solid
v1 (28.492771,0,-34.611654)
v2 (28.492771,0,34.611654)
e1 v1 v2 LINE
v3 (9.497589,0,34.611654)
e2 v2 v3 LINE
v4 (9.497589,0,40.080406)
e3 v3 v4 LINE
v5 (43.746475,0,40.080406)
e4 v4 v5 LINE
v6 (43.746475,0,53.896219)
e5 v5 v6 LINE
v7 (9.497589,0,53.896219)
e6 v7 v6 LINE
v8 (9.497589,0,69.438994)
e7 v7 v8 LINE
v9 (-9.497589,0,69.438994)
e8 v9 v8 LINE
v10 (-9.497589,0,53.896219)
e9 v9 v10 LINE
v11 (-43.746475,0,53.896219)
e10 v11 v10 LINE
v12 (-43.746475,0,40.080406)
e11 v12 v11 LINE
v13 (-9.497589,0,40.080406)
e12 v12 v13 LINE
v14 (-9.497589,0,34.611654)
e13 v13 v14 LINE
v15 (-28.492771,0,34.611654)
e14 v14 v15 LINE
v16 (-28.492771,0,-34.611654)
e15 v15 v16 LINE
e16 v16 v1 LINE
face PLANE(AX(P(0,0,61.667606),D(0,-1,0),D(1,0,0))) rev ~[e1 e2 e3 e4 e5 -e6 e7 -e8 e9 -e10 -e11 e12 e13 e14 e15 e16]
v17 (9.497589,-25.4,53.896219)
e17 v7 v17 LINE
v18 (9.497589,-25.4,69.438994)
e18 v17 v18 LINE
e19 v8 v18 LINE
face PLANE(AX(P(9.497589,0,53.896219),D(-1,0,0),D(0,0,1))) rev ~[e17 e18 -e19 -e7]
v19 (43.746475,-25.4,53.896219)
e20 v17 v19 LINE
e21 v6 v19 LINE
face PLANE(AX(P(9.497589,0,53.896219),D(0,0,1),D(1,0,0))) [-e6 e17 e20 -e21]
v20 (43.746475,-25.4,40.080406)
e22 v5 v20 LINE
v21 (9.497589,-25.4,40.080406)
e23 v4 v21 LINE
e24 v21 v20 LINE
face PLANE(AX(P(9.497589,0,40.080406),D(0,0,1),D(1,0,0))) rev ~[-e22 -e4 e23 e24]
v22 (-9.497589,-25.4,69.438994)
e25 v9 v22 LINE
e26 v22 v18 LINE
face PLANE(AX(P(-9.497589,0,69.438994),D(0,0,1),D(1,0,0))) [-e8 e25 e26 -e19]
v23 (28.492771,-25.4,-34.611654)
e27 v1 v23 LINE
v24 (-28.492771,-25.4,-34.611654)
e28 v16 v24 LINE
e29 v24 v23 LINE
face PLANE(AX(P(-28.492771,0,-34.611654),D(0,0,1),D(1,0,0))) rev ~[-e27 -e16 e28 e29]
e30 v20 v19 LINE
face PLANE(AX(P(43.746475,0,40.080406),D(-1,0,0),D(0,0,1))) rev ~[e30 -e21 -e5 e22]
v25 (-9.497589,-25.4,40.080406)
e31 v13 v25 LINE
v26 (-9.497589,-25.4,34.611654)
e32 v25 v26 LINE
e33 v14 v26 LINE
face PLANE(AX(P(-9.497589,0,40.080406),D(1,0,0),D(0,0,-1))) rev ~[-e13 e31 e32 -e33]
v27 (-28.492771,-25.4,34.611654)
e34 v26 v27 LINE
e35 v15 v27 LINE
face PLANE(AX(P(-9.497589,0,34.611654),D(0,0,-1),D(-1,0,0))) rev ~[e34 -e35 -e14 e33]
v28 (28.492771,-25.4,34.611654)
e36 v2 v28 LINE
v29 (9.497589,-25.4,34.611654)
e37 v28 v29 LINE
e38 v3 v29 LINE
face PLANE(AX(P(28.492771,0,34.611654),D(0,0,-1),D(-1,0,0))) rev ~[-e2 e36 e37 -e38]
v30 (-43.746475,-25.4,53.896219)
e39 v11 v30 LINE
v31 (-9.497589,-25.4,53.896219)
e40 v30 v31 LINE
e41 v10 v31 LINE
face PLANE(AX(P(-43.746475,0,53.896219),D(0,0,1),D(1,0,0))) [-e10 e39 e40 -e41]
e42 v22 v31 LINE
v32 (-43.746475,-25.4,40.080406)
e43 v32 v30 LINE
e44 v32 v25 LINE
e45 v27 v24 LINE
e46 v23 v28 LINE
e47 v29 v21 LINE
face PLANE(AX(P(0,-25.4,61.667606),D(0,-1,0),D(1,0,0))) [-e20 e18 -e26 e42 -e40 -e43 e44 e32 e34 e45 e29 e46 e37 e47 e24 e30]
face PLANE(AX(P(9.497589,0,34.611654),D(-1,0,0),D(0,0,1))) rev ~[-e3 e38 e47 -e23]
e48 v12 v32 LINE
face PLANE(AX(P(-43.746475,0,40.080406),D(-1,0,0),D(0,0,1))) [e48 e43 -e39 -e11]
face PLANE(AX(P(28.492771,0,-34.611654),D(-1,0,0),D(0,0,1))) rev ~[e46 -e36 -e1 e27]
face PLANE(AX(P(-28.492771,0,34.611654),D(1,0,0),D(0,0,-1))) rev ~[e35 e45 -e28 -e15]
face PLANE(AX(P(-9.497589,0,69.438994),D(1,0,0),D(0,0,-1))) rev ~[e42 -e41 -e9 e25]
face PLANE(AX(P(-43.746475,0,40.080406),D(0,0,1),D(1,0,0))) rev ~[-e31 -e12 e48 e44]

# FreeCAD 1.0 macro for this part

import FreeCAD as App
import Part
import Sketcher
from FreeCAD import Vector
Q = App.Units.Quantity

doc = App.newDocument("Part")
body = doc.addObject("PartDesign::Body", "Body")

# Sketch on XZ plane
sketch1 = body.newObject("Sketcher::SketchObject", "Sketch")
sketch1.AttachmentSupport = (doc.getObject("XZ_Plane"), [""])
sketch1.MapMode = "FlatFace"
sketch1.addGeometry([
    Part.LineSegment(Vector(-9, 69, 0), Vector(-9, 54, 0)),  # 0
    Part.LineSegment(Vector(-9, 54, 0), Vector(-44, 54, 0)),  # 1
    Part.LineSegment(Vector(-44, 54, 0), Vector(-44, 40, 0)),  # 2
    Part.LineSegment(Vector(-44, 40, 0), Vector(-9, 40, 0)),  # 3
    Part.LineSegment(Vector(-9, 40, 0), Vector(-9, 35, 0)),  # 4
    Part.LineSegment(Vector(-9, 35, 0), Vector(-28, 35, 0)),  # 5
    Part.LineSegment(Vector(-28, 35, 0), Vector(-28, -35, 0)),  # 6
    Part.LineSegment(Vector(-28, -35, 0), Vector(28, -35, 0)),  # 7
    Part.LineSegment(Vector(28, -35, 0), Vector(28, 35, 0)),  # 8
    Part.LineSegment(Vector(28, 35, 0), Vector(9, 35, 0)),  # 9
    Part.LineSegment(Vector(9, 35, 0), Vector(9, 40, 0)),  # 10
    Part.LineSegment(Vector(9, 40, 0), Vector(44, 40, 0)),  # 11
    Part.LineSegment(Vector(44, 40, 0), Vector(44, 54, 0)),  # 12
    Part.LineSegment(Vector(44, 54, 0), Vector(9, 54, 0)),  # 13
    Part.LineSegment(Vector(9, 54, 0), Vector(9, 69, 0)),  # 14
    Part.LineSegment(Vector(9, 69, 0), Vector(-9, 69, 0)),  # 15
], False)
sketch1.addConstraint([
    Sketcher.Constraint("Coincident", 0, 2, 1, 1),
    Sketcher.Constraint("Coincident", 1, 2, 2, 1),
    Sketcher.Constraint("Coincident", 2, 2, 3, 1),
    Sketcher.Constraint("Coincident", 3, 2, 4, 1),
    Sketcher.Constraint("Coincident", 4, 2, 5, 1),
    Sketcher.Constraint("Coincident", 5, 2, 6, 1),
    Sketcher.Constraint("Coincident", 6, 2, 7, 1),
    Sketcher.Constraint("Coincident", 7, 2, 8, 1),
    Sketcher.Constraint("Coincident", 8, 2, 9, 1),
    Sketcher.Constraint("Coincident", 9, 2, 10, 1),
    Sketcher.Constraint("Coincident", 10, 2, 11, 1),
    Sketcher.Constraint("Coincident", 11, 2, 12, 1),
    Sketcher.Constraint("Coincident", 12, 2, 13, 1),
    Sketcher.Constraint("Coincident", 13, 2, 14, 1),
    Sketcher.Constraint("Coincident", 14, 2, 15, 1),
    Sketcher.Constraint("Coincident", 15, 2, 0, 1),
    Sketcher.Constraint("Vertical", 0),
    Sketcher.Constraint("Horizontal", 1),
    Sketcher.Constraint("Vertical", 2),
    Sketcher.Constraint("Horizontal", 3),
    Sketcher.Constraint("Vertical", 4),
    Sketcher.Constraint("Horizontal", 5),
    Sketcher.Constraint("Vertical", 6),
    Sketcher.Constraint("Horizontal", 7),
    Sketcher.Constraint("Vertical", 8),
    Sketcher.Constraint("Horizontal", 9),
    Sketcher.Constraint("Vertical", 10),
    Sketcher.Constraint("Horizontal", 11),
    Sketcher.Constraint("Vertical", 12),
    Sketcher.Constraint("Horizontal", 13),
    Sketcher.Constraint("Vertical", 14),
    Sketcher.Constraint("Horizontal", 15),
    Sketcher.Constraint("Symmetric", 5, 2, 7, 2, -1, 1),
    Sketcher.Constraint("Symmetric", 4, 2, 9, 2, -2),
    Sketcher.Constraint("Symmetric", 2, 2, 11, 2, -2),
    Sketcher.Constraint("Symmetric", 0, 2, 13, 2, -2),
    Sketcher.Constraint("Vertical", 0, 2, 3, 2),
    Sketcher.Constraint("DistanceX", 5, 2, 5, 1, Q("18.995182 mm")),
    Sketcher.Constraint("DistanceX", 15, 2, 15, 1, Q("18.995179 mm")),
    Sketcher.Constraint("DistanceX", 1, 2, 1, 1, Q("34.248886 mm")),
    Sketcher.Constraint("DistanceY", 0, 2, 0, 1, Q("15.542775 mm")),
    Sketcher.Constraint("DistanceY", 2, 2, 2, 1, Q("13.815813 mm")),
    Sketcher.Constraint("DistanceY", 4, 2, 4, 1, Q("5.468752 mm")),
    Sketcher.Constraint("DistanceY", 6, 2, 6, 1, Q("69.223307 mm")),
])
pad1 = body.newObject("PartDesign::Pad", "Pad")
pad1.Profile = sketch1
pad1.Length = Q("1 in")

doc.recompute()
